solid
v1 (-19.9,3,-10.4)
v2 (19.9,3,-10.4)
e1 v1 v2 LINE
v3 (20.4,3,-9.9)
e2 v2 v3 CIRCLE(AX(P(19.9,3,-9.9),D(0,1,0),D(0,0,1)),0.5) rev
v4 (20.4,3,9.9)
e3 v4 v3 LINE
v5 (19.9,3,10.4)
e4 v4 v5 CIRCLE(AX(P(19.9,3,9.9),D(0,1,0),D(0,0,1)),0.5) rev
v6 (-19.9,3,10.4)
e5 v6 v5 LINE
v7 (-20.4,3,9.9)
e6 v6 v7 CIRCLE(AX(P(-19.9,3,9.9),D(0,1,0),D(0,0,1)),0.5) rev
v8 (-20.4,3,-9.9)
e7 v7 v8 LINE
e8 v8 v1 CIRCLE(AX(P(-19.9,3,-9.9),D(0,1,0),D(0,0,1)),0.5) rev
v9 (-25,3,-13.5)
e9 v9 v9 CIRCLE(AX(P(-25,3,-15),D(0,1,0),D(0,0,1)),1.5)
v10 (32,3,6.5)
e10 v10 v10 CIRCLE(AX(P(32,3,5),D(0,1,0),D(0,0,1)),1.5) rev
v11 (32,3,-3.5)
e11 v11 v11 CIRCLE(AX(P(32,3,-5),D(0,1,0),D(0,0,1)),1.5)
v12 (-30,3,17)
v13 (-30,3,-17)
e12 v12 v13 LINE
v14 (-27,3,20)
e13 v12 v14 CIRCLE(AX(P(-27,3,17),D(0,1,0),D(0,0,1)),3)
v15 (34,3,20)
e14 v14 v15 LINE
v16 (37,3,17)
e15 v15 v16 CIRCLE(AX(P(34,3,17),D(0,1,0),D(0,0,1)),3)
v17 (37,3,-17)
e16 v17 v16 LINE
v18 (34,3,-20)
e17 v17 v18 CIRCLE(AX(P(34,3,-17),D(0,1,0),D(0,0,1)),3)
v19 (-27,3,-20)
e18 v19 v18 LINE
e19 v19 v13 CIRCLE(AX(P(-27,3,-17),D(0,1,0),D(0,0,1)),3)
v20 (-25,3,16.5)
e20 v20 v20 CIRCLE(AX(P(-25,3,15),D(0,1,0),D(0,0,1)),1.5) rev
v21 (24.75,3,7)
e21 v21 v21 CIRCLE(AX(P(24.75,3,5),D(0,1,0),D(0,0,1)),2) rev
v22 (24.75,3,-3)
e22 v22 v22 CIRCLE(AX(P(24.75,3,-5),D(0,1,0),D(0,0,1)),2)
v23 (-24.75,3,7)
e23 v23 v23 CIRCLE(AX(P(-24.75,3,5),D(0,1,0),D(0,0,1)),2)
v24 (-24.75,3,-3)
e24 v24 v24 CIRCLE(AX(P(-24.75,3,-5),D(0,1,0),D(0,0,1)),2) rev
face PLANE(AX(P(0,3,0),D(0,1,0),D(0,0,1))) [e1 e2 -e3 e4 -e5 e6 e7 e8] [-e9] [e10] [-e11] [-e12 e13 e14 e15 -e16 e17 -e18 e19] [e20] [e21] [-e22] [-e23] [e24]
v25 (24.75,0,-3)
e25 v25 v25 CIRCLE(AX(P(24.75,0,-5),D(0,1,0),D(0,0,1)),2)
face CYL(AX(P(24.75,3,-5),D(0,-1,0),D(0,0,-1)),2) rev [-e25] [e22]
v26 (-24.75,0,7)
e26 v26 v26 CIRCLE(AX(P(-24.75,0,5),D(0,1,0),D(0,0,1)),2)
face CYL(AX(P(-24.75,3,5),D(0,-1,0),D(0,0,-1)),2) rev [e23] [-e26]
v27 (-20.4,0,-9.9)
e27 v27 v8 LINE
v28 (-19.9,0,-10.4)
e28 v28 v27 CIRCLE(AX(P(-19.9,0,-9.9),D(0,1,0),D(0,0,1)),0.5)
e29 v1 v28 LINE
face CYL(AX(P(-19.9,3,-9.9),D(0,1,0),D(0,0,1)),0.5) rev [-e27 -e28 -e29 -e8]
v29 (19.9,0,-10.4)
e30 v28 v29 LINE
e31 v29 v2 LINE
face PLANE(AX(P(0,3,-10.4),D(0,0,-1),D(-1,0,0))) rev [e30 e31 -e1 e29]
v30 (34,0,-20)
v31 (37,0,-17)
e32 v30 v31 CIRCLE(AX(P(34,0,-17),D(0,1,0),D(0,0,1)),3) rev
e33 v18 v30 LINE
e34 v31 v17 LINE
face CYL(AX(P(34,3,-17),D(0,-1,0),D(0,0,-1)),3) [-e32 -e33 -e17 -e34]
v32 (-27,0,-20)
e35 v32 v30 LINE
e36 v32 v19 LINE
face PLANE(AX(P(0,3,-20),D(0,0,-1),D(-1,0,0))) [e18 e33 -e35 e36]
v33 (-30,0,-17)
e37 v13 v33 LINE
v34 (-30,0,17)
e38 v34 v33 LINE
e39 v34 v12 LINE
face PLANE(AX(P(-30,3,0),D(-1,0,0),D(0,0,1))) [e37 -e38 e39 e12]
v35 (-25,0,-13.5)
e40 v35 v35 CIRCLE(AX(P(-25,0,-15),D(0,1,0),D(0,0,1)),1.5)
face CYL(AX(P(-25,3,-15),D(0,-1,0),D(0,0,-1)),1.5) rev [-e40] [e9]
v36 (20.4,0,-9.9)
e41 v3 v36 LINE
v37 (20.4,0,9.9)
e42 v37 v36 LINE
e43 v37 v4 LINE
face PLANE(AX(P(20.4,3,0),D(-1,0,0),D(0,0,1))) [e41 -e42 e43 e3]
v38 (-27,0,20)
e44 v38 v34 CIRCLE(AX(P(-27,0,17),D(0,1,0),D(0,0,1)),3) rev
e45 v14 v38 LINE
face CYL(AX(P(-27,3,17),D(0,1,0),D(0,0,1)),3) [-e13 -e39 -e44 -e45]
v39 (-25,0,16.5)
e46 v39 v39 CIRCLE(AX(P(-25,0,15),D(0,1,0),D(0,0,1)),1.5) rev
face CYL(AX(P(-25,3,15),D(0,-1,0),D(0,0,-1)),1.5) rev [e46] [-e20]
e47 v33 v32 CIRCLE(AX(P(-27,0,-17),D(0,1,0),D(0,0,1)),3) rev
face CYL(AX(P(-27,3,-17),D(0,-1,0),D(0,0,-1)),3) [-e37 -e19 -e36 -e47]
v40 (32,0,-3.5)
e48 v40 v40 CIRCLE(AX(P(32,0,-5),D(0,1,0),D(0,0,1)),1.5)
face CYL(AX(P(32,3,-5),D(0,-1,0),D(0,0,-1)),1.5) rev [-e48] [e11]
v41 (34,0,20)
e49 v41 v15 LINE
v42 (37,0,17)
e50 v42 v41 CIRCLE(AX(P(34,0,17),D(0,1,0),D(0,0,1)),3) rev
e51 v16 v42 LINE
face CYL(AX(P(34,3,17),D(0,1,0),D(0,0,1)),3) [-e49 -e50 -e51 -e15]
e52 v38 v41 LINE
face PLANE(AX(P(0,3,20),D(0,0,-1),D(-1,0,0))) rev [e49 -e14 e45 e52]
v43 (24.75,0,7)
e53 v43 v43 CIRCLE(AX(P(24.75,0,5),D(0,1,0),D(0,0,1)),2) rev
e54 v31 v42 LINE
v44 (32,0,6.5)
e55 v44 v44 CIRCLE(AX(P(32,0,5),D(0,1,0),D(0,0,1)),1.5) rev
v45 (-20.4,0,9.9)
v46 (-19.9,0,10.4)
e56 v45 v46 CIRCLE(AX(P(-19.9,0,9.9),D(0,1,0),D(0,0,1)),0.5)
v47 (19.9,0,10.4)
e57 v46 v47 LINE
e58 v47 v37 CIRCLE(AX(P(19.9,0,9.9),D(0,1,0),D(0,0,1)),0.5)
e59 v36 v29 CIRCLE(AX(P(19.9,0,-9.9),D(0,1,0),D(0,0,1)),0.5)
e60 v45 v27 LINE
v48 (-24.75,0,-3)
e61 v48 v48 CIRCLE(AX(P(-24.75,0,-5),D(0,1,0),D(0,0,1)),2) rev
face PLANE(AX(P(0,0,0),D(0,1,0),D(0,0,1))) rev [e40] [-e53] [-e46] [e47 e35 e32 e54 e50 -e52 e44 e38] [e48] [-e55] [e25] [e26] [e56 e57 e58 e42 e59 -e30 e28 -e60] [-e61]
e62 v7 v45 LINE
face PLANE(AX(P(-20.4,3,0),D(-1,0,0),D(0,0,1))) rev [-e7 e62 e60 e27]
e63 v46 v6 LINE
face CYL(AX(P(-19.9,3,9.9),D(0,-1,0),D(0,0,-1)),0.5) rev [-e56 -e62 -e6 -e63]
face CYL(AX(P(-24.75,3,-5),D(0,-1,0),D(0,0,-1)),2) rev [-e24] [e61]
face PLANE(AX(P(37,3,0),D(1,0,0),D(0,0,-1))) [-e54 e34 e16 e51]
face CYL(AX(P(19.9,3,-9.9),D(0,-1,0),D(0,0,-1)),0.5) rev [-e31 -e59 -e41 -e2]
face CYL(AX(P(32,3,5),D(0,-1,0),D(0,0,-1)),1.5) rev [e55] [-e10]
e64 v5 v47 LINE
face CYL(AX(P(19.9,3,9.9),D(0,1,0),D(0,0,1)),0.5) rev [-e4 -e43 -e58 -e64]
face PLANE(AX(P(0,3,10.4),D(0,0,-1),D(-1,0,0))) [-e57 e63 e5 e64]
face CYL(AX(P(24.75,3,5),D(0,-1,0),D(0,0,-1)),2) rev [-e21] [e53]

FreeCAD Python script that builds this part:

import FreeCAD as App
import Part
import Sketcher
Q = App.Units.Quantity


def edges_at(feature, points):
    """Names of the edges that pass closest to the given points."""
    edges = feature.Shape.Edges
    near = lambda p: min(range(len(edges)), key=lambda i: edges[i].distToShape(Part.Vertex(*p))[0])
    return sorted({f"Edge{near(p) + 1}" for p in points})

doc = App.newDocument("Part")
body = doc.addObject("PartDesign::Body", "Body")

# Sketch on XZ plane
sketch1 = body.newObject("Sketcher::SketchObject", "Sketch")
sketch1.AttachmentSupport = (doc.getObject("XZ_Plane"), [""])
sketch1.MapMode = "FlatFace"
sketch1.addGeometry(Part.LineSegment(App.Vector(-30, -20, 0), App.Vector(-30, 20, 0)), False)
sketch1.addGeometry(Part.LineSegment(App.Vector(-30, 20, 0), App.Vector(37, 20, 0)), False)
sketch1.addGeometry(Part.LineSegment(App.Vector(37, 20, 0), App.Vector(37, -20, 0)), False)
sketch1.addGeometry(Part.LineSegment(App.Vector(37, -20, 0), App.Vector(-30, -20, 0)), False)
sketch1.addGeometry(Part.Circle(App.Vector(-25, 15, 0), App.Vector(0, 0, 1), 1.5), False)
sketch1.addGeometry(Part.Circle(App.Vector(-24.75, 5, 0), App.Vector(0, 0, 1), 2), False)
sketch1.addGeometry(Part.Circle(App.Vector(24.75, 5, 0), App.Vector(0, 0, 1), 2), False)
sketch1.addGeometry(Part.Circle(App.Vector(-24.75, -5, 0), App.Vector(0, 0, 1), 2), False)
sketch1.addGeometry(Part.LineSegment(App.Vector(20.4, 10.4, 0), App.Vector(-20.4, 10.4, 0)), False)
sketch1.addGeometry(Part.LineSegment(App.Vector(-20.4, 10.4, 0), App.Vector(-20.4, -10.4, 0)), False)
sketch1.addGeometry(Part.LineSegment(App.Vector(-20.4, -10.4, 0), App.Vector(20.4, -10.4, 0)), False)
sketch1.addGeometry(Part.LineSegment(App.Vector(20.4, -10.4, 0), App.Vector(20.4, 10.4, 0)), False)
sketch1.addGeometry(Part.Circle(App.Vector(-25, -15, 0), App.Vector(0, 0, 1), 1.5), False)
sketch1.addGeometry(Part.Circle(App.Vector(24.75, -5, 0), App.Vector(0, 0, 1), 2), False)
sketch1.addGeometry(Part.Circle(App.Vector(32, -5, 0), App.Vector(0, 0, 1), 1.5), False)
sketch1.addGeometry(Part.Circle(App.Vector(32, 5, 0), App.Vector(0, 0, 1), 1.5), False)
sketch1.addConstraint(Sketcher.Constraint("Coincident", 0, 2, 1, 1))
sketch1.addConstraint(Sketcher.Constraint("Coincident", 1, 2, 2, 1))
sketch1.addConstraint(Sketcher.Constraint("Coincident", 2, 2, 3, 1))
sketch1.addConstraint(Sketcher.Constraint("Coincident", 3, 2, 0, 1))
sketch1.addConstraint(Sketcher.Constraint("Coincident", 8, 2, 9, 1))
sketch1.addConstraint(Sketcher.Constraint("Coincident", 9, 2, 10, 1))
sketch1.addConstraint(Sketcher.Constraint("Coincident", 10, 2, 11, 1))
sketch1.addConstraint(Sketcher.Constraint("Coincident", 11, 2, 8, 1))
sketch1.addConstraint(Sketcher.Constraint("Vertical", 0))
sketch1.addConstraint(Sketcher.Constraint("Horizontal", 1))
sketch1.addConstraint(Sketcher.Constraint("Vertical", 2))
sketch1.addConstraint(Sketcher.Constraint("Horizontal", 3))
sketch1.addConstraint(Sketcher.Constraint("Horizontal", 8))
sketch1.addConstraint(Sketcher.Constraint("Vertical", 9))
sketch1.addConstraint(Sketcher.Constraint("Horizontal", 10))
sketch1.addConstraint(Sketcher.Constraint("Vertical", 11))
sketch1.addConstraint(Sketcher.Constraint("Equal", 5, 6))
sketch1.addConstraint(Sketcher.Constraint("Equal", 6, 7))
sketch1.addConstraint(Sketcher.Constraint("Equal", 4, 12))
sketch1.addConstraint(Sketcher.Constraint("Equal", 7, 13))
sketch1.addConstraint(Sketcher.Constraint("Equal", 12, 14))
sketch1.addConstraint(Sketcher.Constraint("Equal", 14, 15))
sketch1.addConstraint(Sketcher.Constraint("Symmetric", 6, 3, 7, 3, -1, 1))
sketch1.addConstraint(Sketcher.Constraint("Symmetric", 5, 3, 13, 3, -1, 1))
sketch1.addConstraint(Sketcher.Constraint("Symmetric", 8, 2, 10, 2, -1, 1))
sketch1.addConstraint(Sketcher.Constraint("Symmetric", 5, 3, 6, 3, -2))
sketch1.addConstraint(Sketcher.Constraint("Symmetric", 4, 3, 12, 3, -1))
sketch1.addConstraint(Sketcher.Constraint("Symmetric", 14, 3, 15, 3, -1))
sketch1.addConstraint(Sketcher.Constraint("Horizontal", 13, 3, 14, 3))
sketch1.addConstraint(Sketcher.Constraint("Diameter", 4, Q("3 mm")))
sketch1.addConstraint(Sketcher.Constraint("Diameter", 5, Q("4 mm")))
sketch1.addConstraint(Sketcher.Constraint("DistanceX", 1, 1, 1, 2, Q("67 mm")))
sketch1.addConstraint(Sketcher.Constraint("DistanceY", 0, 1, 0, 2, Q("40 mm")))
sketch1.addConstraint(Sketcher.Constraint("DistanceX", 8, 2, 8, 1, Q("40.8 mm")))
sketch1.addConstraint(Sketcher.Constraint("DistanceY", 9, 2, 9, 1, Q("20.8 mm")))
sketch1.addConstraint(Sketcher.Constraint("DistanceX", 4, 3, -1, 1, Q("25 mm")))
sketch1.addConstraint(Sketcher.Constraint("DistanceY", -1, 1, 4, 3, Q("15 mm")))
sketch1.addConstraint(Sketcher.Constraint("DistanceY", -1, 1, 5, 3, Q("5 mm")))
sketch1.addConstraint(Sketcher.Constraint("DistanceX", -1, 1, 14, 3, Q("32 mm")))
sketch1.addConstraint(Sketcher.Constraint("DistanceX", 0, 2, -1, 1, Q("30 mm")))
sketch1.addConstraint(Sketcher.Constraint("DistanceY", -1, 1, 0, 2, Q("20 mm")))
sketch1.addConstraint(Sketcher.Constraint("DistanceX", 5, 3, 6, 3, Q("49.5 mm")))
pad1 = body.newObject("PartDesign::Pad", "Pad")
pad1.Profile = sketch1
pad1.Length = 3
pad1.Reversed = True
doc.recompute()

fillet = body.newObject("PartDesign::Fillet", "Fillet")
fillet.Base = (pad1, edges_at(pad1, [
    (20.4, 1.5, -10.4),
    (-20.4, 1.5, -10.4),
    (-20.4, 1.5, 10.4),
    (20.4, 1.5, 10.4),
]))
fillet.Radius = 0.5
doc.recompute()

fillet2 = body.newObject("PartDesign::Fillet", "Fillet001")
fillet2.Base = (fillet, edges_at(fillet, [
    (-30, 1.5, 20),
    (-30, 1.5, -20),
    (37, 1.5, -20),
    (37, 1.5, 20),
]))
fillet2.Radius = 3

doc.recompute()
